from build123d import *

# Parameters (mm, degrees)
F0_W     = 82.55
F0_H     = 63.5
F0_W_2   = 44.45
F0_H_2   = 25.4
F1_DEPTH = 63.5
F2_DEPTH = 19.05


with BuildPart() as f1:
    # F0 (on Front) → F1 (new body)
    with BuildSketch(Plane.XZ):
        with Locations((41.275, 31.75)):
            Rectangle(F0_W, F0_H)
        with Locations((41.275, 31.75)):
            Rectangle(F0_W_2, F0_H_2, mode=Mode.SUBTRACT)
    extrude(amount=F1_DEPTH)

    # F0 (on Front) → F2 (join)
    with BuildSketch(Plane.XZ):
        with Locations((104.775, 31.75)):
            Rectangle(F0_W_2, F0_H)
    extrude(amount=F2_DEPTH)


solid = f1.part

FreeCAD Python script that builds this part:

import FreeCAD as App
import Part
import Sketcher
from FreeCAD import Vector
Q = App.Units.Quantity


def add_polygon(sketch, points):
    """Adds a closed chain of lines whose ends are joined by coincident constraints."""
    first, n = sketch.GeometryCount, len(points)
    for a, b in zip(points, points[1:] + points[:1]):
        sketch.addGeometry(Part.LineSegment(App.Vector(*a, 0), App.Vector(*b, 0)), False)
    for i in range(n):
        sketch.addConstraint(Sketcher.Constraint("Coincident", first + i, 2, first + (i + 1) % n, 1))

doc = App.newDocument("Part")
params = doc.addObject("Spreadsheet::Sheet", "Params")
for row, (alias, value) in enumerate([
    ("sketch1_height", "1 in"),
    ("sketch1_height2", "2.5 in"),
    ("sketch1_width", "3.25 in"),
    ("sketch1_width2", "1.75 in"),
    ("pad1_length", "2.5 in"),
    ("sketch2_height", "2.5 in"),
    ("sketch2_width", "1.75 in"),
    ("pad2_length", "0.75 in"),
], start=1):
    params.set(f"A{row}", alias)
    params.set(f"B{row}", "=" + value)
    params.setAlias(f"B{row}", alias)

body = doc.addObject("PartDesign::Body", "Body")

sketch1 = body.newObject("Sketcher::SketchObject", "Sketch")
sketch1.AttachmentSupport = (doc.getObject("XZ_Plane"), [""])
sketch1.MapMode = "FlatFace"
add_polygon(sketch1, [(0, 64), (0, 0), (83, 0), (83, 64)])
add_polygon(sketch1, [(64, 19), (19, 19), (19, 44), (64, 44)])
sketch1.addConstraint([
    Sketcher.Constraint("Vertical", 0),
    Sketcher.Constraint("Horizontal", 1),
    Sketcher.Constraint("Vertical", 2),
    Sketcher.Constraint("Horizontal", 3),
    Sketcher.Constraint("Horizontal", 4),
    Sketcher.Constraint("Vertical", 5),
    Sketcher.Constraint("Horizontal", 6),
    Sketcher.Constraint("Vertical", 7),
    Sketcher.Constraint("Coincident", 0, 2, -1, 1),
    Sketcher.Constraint("DistanceY", 5, 1, 5, 2, Q("1 in")),
    Sketcher.Constraint("DistanceY", 0, 2, 0, 1, Q("2.5 in")),
    Sketcher.Constraint("DistanceX", 1, 1, 1, 2, Q("3.25 in")),
    Sketcher.Constraint("DistanceX", 4, 2, 4, 1, Q("1.75 in")),
    Sketcher.Constraint("DistanceX", -1, 1, 6, 2, Q("2.5 in")),
    Sketcher.Constraint("DistanceY", -1, 1, 4, 2, Q("0.75 in")),
])
sketch1.setExpression("Constraints[17]", "Params.sketch1_height")
sketch1.setExpression("Constraints[18]", "Params.sketch1_height2")
sketch1.setExpression("Constraints[19]", "Params.sketch1_width")
sketch1.setExpression("Constraints[20]", "Params.sketch1_width2")
pad1 = body.newObject("PartDesign::Pad", "Pad")
pad1.Profile = sketch1
pad1.setExpression("Length", "Params.pad1_length")

sketch2 = body.newObject("Sketcher::SketchObject", "Sketch001")
sketch2.AttachmentSupport = (doc.getObject("XZ_Plane"), [""])
sketch2.MapMode = "FlatFace"
add_polygon(sketch2, [(83, 64), (83, 0), (127, 0), (127, 64)])
sketch2.addConstraint([
    Sketcher.Constraint("Vertical", 0),
    Sketcher.Constraint("Horizontal", 1),
    Sketcher.Constraint("Vertical", 2),
    Sketcher.Constraint("Horizontal", 3),
    Sketcher.Constraint("PointOnObject", 0, 2, -1),
    Sketcher.Constraint("DistanceY", 0, 2, 0, 1, Q("2.5 in")),
    Sketcher.Constraint("DistanceX", -1, 1, 1, 2, Q("5 in")),
    Sketcher.Constraint("DistanceX", 1, 1, 1, 2, Q("1.75 in")),
])
sketch2.setExpression("Constraints[9]", "Params.sketch2_height")
sketch2.setExpression("Constraints[11]", "Params.sketch2_width")
pad2 = body.newObject("PartDesign::Pad", "Pad001")
pad2.Profile = sketch2
pad2.setExpression("Length", "Params.pad2_length")

doc.recompute()
